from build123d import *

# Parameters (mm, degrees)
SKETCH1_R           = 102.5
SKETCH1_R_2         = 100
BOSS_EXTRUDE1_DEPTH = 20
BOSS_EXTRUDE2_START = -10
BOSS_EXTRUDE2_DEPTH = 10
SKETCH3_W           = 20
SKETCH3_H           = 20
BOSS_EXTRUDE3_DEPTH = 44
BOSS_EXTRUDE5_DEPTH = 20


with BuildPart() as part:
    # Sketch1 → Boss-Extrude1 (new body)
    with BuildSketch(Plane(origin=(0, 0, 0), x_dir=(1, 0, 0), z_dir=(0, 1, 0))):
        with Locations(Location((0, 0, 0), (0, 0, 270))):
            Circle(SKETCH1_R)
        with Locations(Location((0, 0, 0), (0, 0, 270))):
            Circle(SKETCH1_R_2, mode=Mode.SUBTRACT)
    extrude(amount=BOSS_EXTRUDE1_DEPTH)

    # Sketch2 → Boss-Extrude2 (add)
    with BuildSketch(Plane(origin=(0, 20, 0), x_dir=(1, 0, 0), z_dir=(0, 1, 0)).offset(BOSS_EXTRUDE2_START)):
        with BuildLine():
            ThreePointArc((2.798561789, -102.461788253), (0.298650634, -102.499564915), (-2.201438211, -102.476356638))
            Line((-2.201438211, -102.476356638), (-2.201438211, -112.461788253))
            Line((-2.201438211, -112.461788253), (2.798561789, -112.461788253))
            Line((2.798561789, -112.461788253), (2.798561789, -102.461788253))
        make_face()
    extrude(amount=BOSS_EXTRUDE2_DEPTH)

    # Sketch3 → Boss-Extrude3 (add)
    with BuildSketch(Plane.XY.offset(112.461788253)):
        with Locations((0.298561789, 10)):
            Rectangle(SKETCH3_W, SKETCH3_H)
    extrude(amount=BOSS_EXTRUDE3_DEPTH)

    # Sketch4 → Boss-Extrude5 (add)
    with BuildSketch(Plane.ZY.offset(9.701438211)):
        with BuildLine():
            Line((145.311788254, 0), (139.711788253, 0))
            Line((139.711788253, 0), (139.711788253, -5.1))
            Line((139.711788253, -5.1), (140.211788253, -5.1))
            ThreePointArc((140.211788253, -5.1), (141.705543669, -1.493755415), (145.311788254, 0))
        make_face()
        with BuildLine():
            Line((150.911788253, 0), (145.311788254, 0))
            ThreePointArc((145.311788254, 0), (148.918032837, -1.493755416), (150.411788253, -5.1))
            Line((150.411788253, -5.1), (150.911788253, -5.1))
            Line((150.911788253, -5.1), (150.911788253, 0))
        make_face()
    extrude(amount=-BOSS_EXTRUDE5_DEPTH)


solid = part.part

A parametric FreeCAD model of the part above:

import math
import FreeCAD as App
import Part
import Sketcher
from FreeCAD import Vector


def add_polygon(sketch, points):
    """Adds a closed chain of lines whose ends are joined by coincident constraints."""
    first, n = sketch.GeometryCount, len(points)
    for a, b in zip(points, points[1:] + points[:1]):
        sketch.addGeometry(Part.LineSegment(App.Vector(*a, 0), App.Vector(*b, 0)), False)
    for i in range(n):
        sketch.addConstraint(Sketcher.Constraint("Coincident", first + i, 2, first + (i + 1) % n, 1))

doc = App.newDocument("Part")
body = doc.addObject("PartDesign::Body", "Body")

sketch1 = body.newObject("Sketcher::SketchObject", "Sketch")
sketch1.AttachmentSupport = (doc.getObject("XZ_Plane"), [""])
sketch1.MapMode = "FlatFace"
sketch1.addGeometry([
    Part.Circle(Vector(0, 0, 0), Vector(0, 0, 1), 102),
    Part.Circle(Vector(0, 0, 0), Vector(0, 0, 1), 100),
], False)
sketch1.addConstraint([
    Sketcher.Constraint("Coincident", 0, 3, -1, 1),
    Sketcher.Constraint("Coincident", 1, 3, -1, 1),
    Sketcher.Constraint("Diameter", 0, 205.0),
    Sketcher.Constraint("Diameter", 1, 200.0),
])
pad1 = body.newObject("PartDesign::Pad", "Pad")
pad1.Profile = sketch1
pad1.Length = 20
pad1.Reversed = True

sketch2 = body.newObject("Sketcher::SketchObject", "Sketch001")
sketch2.AttachmentSupport = (doc.getObject("XZ_Plane"), [""])
sketch2.MapMode = "FlatFace"
sketch2.AttachmentOffset = App.Placement(Vector(0, 0, -10), App.Rotation())
sketch2.addGeometry([
    Part.ArcOfCircle(Part.Circle(Vector(0, 0, 0), Vector(0, 0, 1), 103), math.radians(88.44), math.radians(91.23)),
    Part.LineSegment(Vector(-2, 102, 0), Vector(-2, 112, 0)),
    Part.LineSegment(Vector(-2, 112, 0), Vector(3, 112, 0)),
    Part.LineSegment(Vector(3, 112, 0), Vector(3, 102, 0)),
], False)
sketch2.addConstraint([
    Sketcher.Constraint("Coincident", 0, 2, 1, 1),
    Sketcher.Constraint("Coincident", 1, 2, 2, 1),
    Sketcher.Constraint("Coincident", 2, 2, 3, 1),
    Sketcher.Constraint("Coincident", 3, 2, 0, 1),
    Sketcher.Constraint("Vertical", 1),
    Sketcher.Constraint("Horizontal", 2),
    Sketcher.Constraint("Vertical", 3),
    Sketcher.Constraint("Coincident", 0, 3, -1, 1),
    Sketcher.Constraint("Radius", 0, 102.500001),
    Sketcher.Constraint("DistanceX", 2, 1, 2, 2, 5.0),
    Sketcher.Constraint("DistanceY", 3, 2, 3, 1, 10.0),
    Sketcher.Constraint("DistanceY", 1, 1, 1, 2, 9.985432),
])
pad2 = body.newObject("PartDesign::Pad", "Pad001")
pad2.Profile = sketch2
pad2.Length = 10
pad2.Reversed = True

sketch3 = body.newObject("Sketcher::SketchObject", "Sketch002")
sketch3.AttachmentSupport = (doc.getObject("XY_Plane"), [""])
sketch3.MapMode = "FlatFace"
sketch3.AttachmentOffset = App.Placement(Vector(0, 0, 112.461788), App.Rotation())
add_polygon(sketch3, [(-10, 20), (-10, 0), (10, 0), (10, 20)])
sketch3.addConstraint([
    Sketcher.Constraint("Vertical", 0),
    Sketcher.Constraint("Horizontal", 1),
    Sketcher.Constraint("Vertical", 2),
    Sketcher.Constraint("Horizontal", 3),
    Sketcher.Constraint("PointOnObject", 0, 2, -1),
    Sketcher.Constraint("Equal", 3, 0),
    Sketcher.Constraint("DistanceX", 1, 1, 1, 2, 20.0),
    Sketcher.Constraint("DistanceX", 0, 2, -1, 1, 9.701438),
])
pad3 = body.newObject("PartDesign::Pad", "Pad002")
pad3.Profile = sketch3
pad3.Length = 44

sketch4 = body.newObject("Sketcher::SketchObject", "Sketch003")
sketch4.AttachmentSupport = (doc.getObject("YZ_Plane"), [""])
sketch4.MapMode = "FlatFace"
sketch4.AttachmentOffset = App.Placement(Vector(0, 0, -9.701438), App.Rotation())
sketch4.addGeometry([
    Part.LineSegment(Vector(0, 145.3, 0), Vector(0, 139.7, 0)),
    Part.LineSegment(Vector(0, 139.7, 0), Vector(-5.1, 139.7, 0)),
    Part.LineSegment(Vector(-5.1, 139.7, 0), Vector(-5.1, 140.2, 0)),
    Part.ArcOfCircle(Part.Circle(Vector(-5.1, 145.3, 0), Vector(0, 0, 1), 5.1), math.radians(-90), math.radians(0)),
    Part.LineSegment(Vector(0, 150.9, 0), Vector(0, 145.3, 0)),
    Part.ArcOfCircle(Part.Circle(Vector(-5.1, 145.3, 0), Vector(0, 0, 1), 5.1), math.radians(0), math.radians(90)),
    Part.LineSegment(Vector(-5.1, 150.4, 0), Vector(-5.1, 150.9, 0)),
    Part.LineSegment(Vector(-5.1, 150.9, 0), Vector(0, 150.9, 0)),
], False)
sketch4.addConstraint([
    Sketcher.Constraint("Coincident", 0, 2, 1, 1),
    Sketcher.Constraint("Coincident", 1, 2, 2, 1),
    Sketcher.Constraint("Coincident", 2, 2, 3, 1),
    Sketcher.Constraint("Tangent", 3, 2, 0, 1),
    Sketcher.Constraint("Tangent", 4, 2, 5, 1),
    Sketcher.Constraint("Coincident", 5, 2, 6, 1),
    Sketcher.Constraint("Coincident", 6, 2, 7, 1),
    Sketcher.Constraint("Coincident", 7, 2, 4, 1),
    Sketcher.Constraint("Vertical", 0),
    Sketcher.Constraint("Horizontal", 1),
    Sketcher.Constraint("Vertical", 2),
    Sketcher.Constraint("Vertical", 4),
    Sketcher.Constraint("Vertical", 6),
    Sketcher.Constraint("Horizontal", 7),
    Sketcher.Constraint("Coincident", 5, 3, 3, 3),
    Sketcher.Constraint("Equal", 3, 5),
    Sketcher.Constraint("PointOnObject", 0, 2, -2),
    Sketcher.Constraint("Vertical", 5, 3, 1, 2),
    Sketcher.Constraint("Vertical", 2, 2, 5, 2),
    Sketcher.Constraint("Equal", 0, 4),
    Sketcher.Constraint("Radius", 3, 5.1),
    Sketcher.Constraint("DistanceY", 0, 2, 0, 1, 5.6),
    Sketcher.Constraint("DistanceY", -1, 1, 3, 3, 145.311788),
])
pad4 = body.newObject("PartDesign::Pad", "Pad003")
pad4.Profile = sketch4
pad4.Length = 20

doc.recompute()
